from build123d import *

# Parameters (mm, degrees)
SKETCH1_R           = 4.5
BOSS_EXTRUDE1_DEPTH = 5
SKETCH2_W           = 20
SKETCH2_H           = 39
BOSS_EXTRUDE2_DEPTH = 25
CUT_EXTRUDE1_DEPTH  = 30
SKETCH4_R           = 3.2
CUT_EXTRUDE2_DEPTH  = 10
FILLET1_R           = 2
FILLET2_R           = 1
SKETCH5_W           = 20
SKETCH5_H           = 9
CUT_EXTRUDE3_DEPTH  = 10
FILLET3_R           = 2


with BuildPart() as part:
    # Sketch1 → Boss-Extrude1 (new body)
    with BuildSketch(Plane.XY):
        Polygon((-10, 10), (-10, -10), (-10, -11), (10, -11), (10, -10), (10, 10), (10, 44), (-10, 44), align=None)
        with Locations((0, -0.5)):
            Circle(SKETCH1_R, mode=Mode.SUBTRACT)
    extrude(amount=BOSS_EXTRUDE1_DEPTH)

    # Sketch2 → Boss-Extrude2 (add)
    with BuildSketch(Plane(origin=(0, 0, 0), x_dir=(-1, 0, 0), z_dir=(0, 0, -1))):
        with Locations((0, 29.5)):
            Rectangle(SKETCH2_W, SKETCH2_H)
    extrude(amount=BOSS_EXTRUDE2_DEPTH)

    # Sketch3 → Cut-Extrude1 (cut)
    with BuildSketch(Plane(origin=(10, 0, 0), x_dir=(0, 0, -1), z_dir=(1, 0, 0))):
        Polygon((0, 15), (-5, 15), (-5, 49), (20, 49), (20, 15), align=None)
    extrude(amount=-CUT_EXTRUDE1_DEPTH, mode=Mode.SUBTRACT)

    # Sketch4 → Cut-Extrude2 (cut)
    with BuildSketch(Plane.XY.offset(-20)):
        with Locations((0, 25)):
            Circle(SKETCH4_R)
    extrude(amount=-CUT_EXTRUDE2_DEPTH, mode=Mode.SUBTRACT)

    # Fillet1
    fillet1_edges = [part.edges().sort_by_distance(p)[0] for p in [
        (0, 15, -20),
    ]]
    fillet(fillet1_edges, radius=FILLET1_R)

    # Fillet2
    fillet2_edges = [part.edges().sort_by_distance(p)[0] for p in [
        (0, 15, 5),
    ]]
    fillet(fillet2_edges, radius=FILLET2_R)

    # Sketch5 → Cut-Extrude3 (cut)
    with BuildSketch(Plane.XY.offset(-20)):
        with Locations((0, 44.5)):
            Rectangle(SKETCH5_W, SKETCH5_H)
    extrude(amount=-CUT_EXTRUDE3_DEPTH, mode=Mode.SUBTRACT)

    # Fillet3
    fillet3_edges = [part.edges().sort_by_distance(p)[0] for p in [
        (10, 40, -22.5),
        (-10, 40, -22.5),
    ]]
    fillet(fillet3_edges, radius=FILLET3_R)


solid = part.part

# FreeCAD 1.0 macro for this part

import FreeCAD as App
import Part
import Sketcher


def edges_at(feature, points):
    """Names of the edges that pass closest to the given points."""
    edges = feature.Shape.Edges
    near = lambda p: min(range(len(edges)), key=lambda i: edges[i].distToShape(Part.Vertex(*p))[0])
    return sorted({f"Edge{near(p) + 1}" for p in points})


def add_polygon(sketch, points):
    """Adds a closed chain of lines whose ends are joined by coincident constraints."""
    first, n = sketch.GeometryCount, len(points)
    for a, b in zip(points, points[1:] + points[:1]):
        sketch.addGeometry(Part.LineSegment(App.Vector(*a, 0), App.Vector(*b, 0)), False)
    for i in range(n):
        sketch.addConstraint(Sketcher.Constraint("Coincident", first + i, 2, first + (i + 1) % n, 1))

doc = App.newDocument("Part")
params = doc.addObject("Spreadsheet::Sheet", "Params")
for row, (alias, value) in enumerate([
    ("sketch1_diameter", "9 mm"),
    ("sketch1_width", "20 mm"),
    ("sketch1_height", "55 mm"),
    ("pad1_length", "5 mm"),
    ("sketch2_width", "20 mm"),
    ("sketch2_height", "39 mm"),
    ("pad2_length", "25 mm"),
    ("sketch3_width", "34 mm"),
    ("sketch3_height", "25 mm"),
    ("pocket1_length", "30 mm"),
    ("sketch4_diameter", "6.4 mm"),
    ("pocket2_length", "10 mm"),
    ("fillet_radius", "2 mm"),
    ("fillet2_radius", "1 mm"),
    ("sketch5_width", "20 mm"),
    ("sketch5_height", "9 mm"),
    ("pocket3_length", "10 mm"),
    ("fillet3_radius", "2 mm"),
], start=1):
    params.set(f"A{row}", alias)
    params.set(f"B{row}", "=" + value)
    params.setAlias(f"B{row}", alias)

body = doc.addObject("PartDesign::Body", "Body")

sketch1 = body.newObject("Sketcher::SketchObject", "Sketch")
sketch1.AttachmentSupport = (doc.getObject("XY_Plane"), [""])
sketch1.MapMode = "FlatFace"
add_polygon(sketch1, [(-10, -11), (10, -11), (10, 44), (-10, 44)])
sketch1.addGeometry(Part.Circle(App.Vector(0, -0.5, 0), App.Vector(0, 0, 1), 4.5), False)
sketch1.addConstraint([
    Sketcher.Constraint("Horizontal", 0),
    Sketcher.Constraint("Vertical", 1),
    Sketcher.Constraint("Horizontal", 2),
    Sketcher.Constraint("Vertical", 3),
    Sketcher.Constraint("PointOnObject", 4, 3, -2),
    Sketcher.Constraint("Diameter", 4, 9.0),
    Sketcher.Constraint("DistanceX", 0, 1, 0, 2, 20.0),
    Sketcher.Constraint("DistanceY", 1, 1, 1, 2, 55.0),
    Sketcher.Constraint("DistanceX", -1, 1, 0, 2, 10.0),
    Sketcher.Constraint("DistanceY", 0, 2, -1, 1, 11.0),
    Sketcher.Constraint("DistanceY", 4, 3, -1, 1, 0.5),
])
sketch1.setExpression("Constraints[9]", "Params.sketch1_diameter")
sketch1.setExpression("Constraints[10]", "Params.sketch1_width")
sketch1.setExpression("Constraints[11]", "Params.sketch1_height")
pad1 = body.newObject("PartDesign::Pad", "Pad")
pad1.Profile = sketch1
pad1.setExpression("Length", "Params.pad1_length")

sketch2 = body.newObject("Sketcher::SketchObject", "Sketch001")
sketch2.AttachmentSupport = (doc.getObject("XY_Plane"), [""])
sketch2.MapMode = "FlatFace"
add_polygon(sketch2, [(10, 49), (10, 10), (-10, 10), (-10, 49)])
sketch2.addConstraint([
    Sketcher.Constraint("Vertical", 0),
    Sketcher.Constraint("Horizontal", 1),
    Sketcher.Constraint("Vertical", 2),
    Sketcher.Constraint("Horizontal", 3),
    Sketcher.Constraint("DistanceX", 1, 2, 1, 1, 20.0),
    Sketcher.Constraint("DistanceY", 0, 2, 0, 1, 39.0),
    Sketcher.Constraint("DistanceX", -1, 1, 0, 2, 10.0),
    Sketcher.Constraint("DistanceY", -1, 1, 0, 2, 10.0),
])
sketch2.setExpression("Constraints[8]", "Params.sketch2_width")
sketch2.setExpression("Constraints[9]", "Params.sketch2_height")
pad2 = body.newObject("PartDesign::Pad", "Pad001")
pad2.Profile = sketch2
pad2.setExpression("Length", "Params.pad2_length")
pad2.Reversed = True

sketch3 = body.newObject("Sketcher::SketchObject", "Sketch002")
sketch3.AttachmentSupport = (doc.getObject("YZ_Plane"), [""])
sketch3.MapMode = "FlatFace"
sketch3.AttachmentOffset = App.Placement(App.Vector(0, 0, 10), App.Rotation())
add_polygon(sketch3, [(15, 5), (15, -20), (49, -20), (49, 5)])
sketch3.addConstraint([
    Sketcher.Constraint("Vertical", 0),
    Sketcher.Constraint("Horizontal", 1),
    Sketcher.Constraint("Vertical", 2),
    Sketcher.Constraint("Horizontal", 3),
    Sketcher.Constraint("DistanceX", 1, 1, 1, 2, 34.0),
    Sketcher.Constraint("DistanceY", 0, 2, 0, 1, 25.0),
    Sketcher.Constraint("DistanceX", -1, 1, 0, 2, 15.0),
    Sketcher.Constraint("DistanceY", 0, 2, -1, 1, 20.0),
])
sketch3.setExpression("Constraints[8]", "Params.sketch3_width")
sketch3.setExpression("Constraints[9]", "Params.sketch3_height")
pocket1 = body.newObject("PartDesign::Pocket", "Pocket")
pocket1.Profile = sketch3
pocket1.setExpression("Length", "Params.pocket1_length")

sketch4 = body.newObject("Sketcher::SketchObject", "Sketch003")
sketch4.AttachmentSupport = (doc.getObject("XY_Plane"), [""])
sketch4.MapMode = "FlatFace"
sketch4.AttachmentOffset = App.Placement(App.Vector(0, 0, -20), App.Rotation())
sketch4.addGeometry(Part.Circle(App.Vector(0, 25, 0), App.Vector(0, 0, 1), 3.2), False)
sketch4.addConstraint([
    Sketcher.Constraint("PointOnObject", 0, 3, -2),
    Sketcher.Constraint("Diameter", 0, 6.4),
    Sketcher.Constraint("DistanceY", -1, 1, 0, 3, 25.0),
])
sketch4.setExpression("Constraints[1]", "Params.sketch4_diameter")
pocket2 = body.newObject("PartDesign::Pocket", "Pocket001")
pocket2.Profile = sketch4
pocket2.setExpression("Length", "Params.pocket2_length")
doc.recompute()

fillet = body.newObject("PartDesign::Fillet", "Fillet")
fillet.Base = (pocket2, edges_at(pocket2, [(0, 15, -20)]))
fillet.setExpression("Radius", "Params.fillet_radius")
doc.recompute()

fillet2 = body.newObject("PartDesign::Fillet", "Fillet001")
fillet2.Base = (fillet, edges_at(fillet, [(0, 15, 5)]))
fillet2.setExpression("Radius", "Params.fillet2_radius")

sketch5 = body.newObject("Sketcher::SketchObject", "Sketch004")
sketch5.AttachmentSupport = (doc.getObject("XY_Plane"), [""])
sketch5.MapMode = "FlatFace"
sketch5.AttachmentOffset = App.Placement(App.Vector(0, 0, -20), App.Rotation())
add_polygon(sketch5, [(-10, 49), (-10, 40), (10, 40), (10, 49)])
sketch5.addConstraint([
    Sketcher.Constraint("Vertical", 0),
    Sketcher.Constraint("Horizontal", 1),
    Sketcher.Constraint("Vertical", 2),
    Sketcher.Constraint("Horizontal", 3),
    Sketcher.Constraint("DistanceX", 1, 1, 1, 2, 20.0),
    Sketcher.Constraint("DistanceY", 0, 2, 0, 1, 9.0),
    Sketcher.Constraint("DistanceX", 0, 2, -1, 1, 10.0),
    Sketcher.Constraint("DistanceY", -1, 1, 0, 2, 40.0),
])
sketch5.setExpression("Constraints[8]", "Params.sketch5_width")
sketch5.setExpression("Constraints[9]", "Params.sketch5_height")
pocket3 = body.newObject("PartDesign::Pocket", "Pocket002")
pocket3.Profile = sketch5
pocket3.setExpression("Length", "Params.pocket3_length")
doc.recompute()

fillet3 = body.newObject("PartDesign::Fillet", "Fillet002")
fillet3.Base = (pocket3, edges_at(pocket3, [(10, 40, -22.5), (-10, 40, -22.5)]))
fillet3.setExpression("Radius", "Params.fillet3_radius")

doc.recompute()
